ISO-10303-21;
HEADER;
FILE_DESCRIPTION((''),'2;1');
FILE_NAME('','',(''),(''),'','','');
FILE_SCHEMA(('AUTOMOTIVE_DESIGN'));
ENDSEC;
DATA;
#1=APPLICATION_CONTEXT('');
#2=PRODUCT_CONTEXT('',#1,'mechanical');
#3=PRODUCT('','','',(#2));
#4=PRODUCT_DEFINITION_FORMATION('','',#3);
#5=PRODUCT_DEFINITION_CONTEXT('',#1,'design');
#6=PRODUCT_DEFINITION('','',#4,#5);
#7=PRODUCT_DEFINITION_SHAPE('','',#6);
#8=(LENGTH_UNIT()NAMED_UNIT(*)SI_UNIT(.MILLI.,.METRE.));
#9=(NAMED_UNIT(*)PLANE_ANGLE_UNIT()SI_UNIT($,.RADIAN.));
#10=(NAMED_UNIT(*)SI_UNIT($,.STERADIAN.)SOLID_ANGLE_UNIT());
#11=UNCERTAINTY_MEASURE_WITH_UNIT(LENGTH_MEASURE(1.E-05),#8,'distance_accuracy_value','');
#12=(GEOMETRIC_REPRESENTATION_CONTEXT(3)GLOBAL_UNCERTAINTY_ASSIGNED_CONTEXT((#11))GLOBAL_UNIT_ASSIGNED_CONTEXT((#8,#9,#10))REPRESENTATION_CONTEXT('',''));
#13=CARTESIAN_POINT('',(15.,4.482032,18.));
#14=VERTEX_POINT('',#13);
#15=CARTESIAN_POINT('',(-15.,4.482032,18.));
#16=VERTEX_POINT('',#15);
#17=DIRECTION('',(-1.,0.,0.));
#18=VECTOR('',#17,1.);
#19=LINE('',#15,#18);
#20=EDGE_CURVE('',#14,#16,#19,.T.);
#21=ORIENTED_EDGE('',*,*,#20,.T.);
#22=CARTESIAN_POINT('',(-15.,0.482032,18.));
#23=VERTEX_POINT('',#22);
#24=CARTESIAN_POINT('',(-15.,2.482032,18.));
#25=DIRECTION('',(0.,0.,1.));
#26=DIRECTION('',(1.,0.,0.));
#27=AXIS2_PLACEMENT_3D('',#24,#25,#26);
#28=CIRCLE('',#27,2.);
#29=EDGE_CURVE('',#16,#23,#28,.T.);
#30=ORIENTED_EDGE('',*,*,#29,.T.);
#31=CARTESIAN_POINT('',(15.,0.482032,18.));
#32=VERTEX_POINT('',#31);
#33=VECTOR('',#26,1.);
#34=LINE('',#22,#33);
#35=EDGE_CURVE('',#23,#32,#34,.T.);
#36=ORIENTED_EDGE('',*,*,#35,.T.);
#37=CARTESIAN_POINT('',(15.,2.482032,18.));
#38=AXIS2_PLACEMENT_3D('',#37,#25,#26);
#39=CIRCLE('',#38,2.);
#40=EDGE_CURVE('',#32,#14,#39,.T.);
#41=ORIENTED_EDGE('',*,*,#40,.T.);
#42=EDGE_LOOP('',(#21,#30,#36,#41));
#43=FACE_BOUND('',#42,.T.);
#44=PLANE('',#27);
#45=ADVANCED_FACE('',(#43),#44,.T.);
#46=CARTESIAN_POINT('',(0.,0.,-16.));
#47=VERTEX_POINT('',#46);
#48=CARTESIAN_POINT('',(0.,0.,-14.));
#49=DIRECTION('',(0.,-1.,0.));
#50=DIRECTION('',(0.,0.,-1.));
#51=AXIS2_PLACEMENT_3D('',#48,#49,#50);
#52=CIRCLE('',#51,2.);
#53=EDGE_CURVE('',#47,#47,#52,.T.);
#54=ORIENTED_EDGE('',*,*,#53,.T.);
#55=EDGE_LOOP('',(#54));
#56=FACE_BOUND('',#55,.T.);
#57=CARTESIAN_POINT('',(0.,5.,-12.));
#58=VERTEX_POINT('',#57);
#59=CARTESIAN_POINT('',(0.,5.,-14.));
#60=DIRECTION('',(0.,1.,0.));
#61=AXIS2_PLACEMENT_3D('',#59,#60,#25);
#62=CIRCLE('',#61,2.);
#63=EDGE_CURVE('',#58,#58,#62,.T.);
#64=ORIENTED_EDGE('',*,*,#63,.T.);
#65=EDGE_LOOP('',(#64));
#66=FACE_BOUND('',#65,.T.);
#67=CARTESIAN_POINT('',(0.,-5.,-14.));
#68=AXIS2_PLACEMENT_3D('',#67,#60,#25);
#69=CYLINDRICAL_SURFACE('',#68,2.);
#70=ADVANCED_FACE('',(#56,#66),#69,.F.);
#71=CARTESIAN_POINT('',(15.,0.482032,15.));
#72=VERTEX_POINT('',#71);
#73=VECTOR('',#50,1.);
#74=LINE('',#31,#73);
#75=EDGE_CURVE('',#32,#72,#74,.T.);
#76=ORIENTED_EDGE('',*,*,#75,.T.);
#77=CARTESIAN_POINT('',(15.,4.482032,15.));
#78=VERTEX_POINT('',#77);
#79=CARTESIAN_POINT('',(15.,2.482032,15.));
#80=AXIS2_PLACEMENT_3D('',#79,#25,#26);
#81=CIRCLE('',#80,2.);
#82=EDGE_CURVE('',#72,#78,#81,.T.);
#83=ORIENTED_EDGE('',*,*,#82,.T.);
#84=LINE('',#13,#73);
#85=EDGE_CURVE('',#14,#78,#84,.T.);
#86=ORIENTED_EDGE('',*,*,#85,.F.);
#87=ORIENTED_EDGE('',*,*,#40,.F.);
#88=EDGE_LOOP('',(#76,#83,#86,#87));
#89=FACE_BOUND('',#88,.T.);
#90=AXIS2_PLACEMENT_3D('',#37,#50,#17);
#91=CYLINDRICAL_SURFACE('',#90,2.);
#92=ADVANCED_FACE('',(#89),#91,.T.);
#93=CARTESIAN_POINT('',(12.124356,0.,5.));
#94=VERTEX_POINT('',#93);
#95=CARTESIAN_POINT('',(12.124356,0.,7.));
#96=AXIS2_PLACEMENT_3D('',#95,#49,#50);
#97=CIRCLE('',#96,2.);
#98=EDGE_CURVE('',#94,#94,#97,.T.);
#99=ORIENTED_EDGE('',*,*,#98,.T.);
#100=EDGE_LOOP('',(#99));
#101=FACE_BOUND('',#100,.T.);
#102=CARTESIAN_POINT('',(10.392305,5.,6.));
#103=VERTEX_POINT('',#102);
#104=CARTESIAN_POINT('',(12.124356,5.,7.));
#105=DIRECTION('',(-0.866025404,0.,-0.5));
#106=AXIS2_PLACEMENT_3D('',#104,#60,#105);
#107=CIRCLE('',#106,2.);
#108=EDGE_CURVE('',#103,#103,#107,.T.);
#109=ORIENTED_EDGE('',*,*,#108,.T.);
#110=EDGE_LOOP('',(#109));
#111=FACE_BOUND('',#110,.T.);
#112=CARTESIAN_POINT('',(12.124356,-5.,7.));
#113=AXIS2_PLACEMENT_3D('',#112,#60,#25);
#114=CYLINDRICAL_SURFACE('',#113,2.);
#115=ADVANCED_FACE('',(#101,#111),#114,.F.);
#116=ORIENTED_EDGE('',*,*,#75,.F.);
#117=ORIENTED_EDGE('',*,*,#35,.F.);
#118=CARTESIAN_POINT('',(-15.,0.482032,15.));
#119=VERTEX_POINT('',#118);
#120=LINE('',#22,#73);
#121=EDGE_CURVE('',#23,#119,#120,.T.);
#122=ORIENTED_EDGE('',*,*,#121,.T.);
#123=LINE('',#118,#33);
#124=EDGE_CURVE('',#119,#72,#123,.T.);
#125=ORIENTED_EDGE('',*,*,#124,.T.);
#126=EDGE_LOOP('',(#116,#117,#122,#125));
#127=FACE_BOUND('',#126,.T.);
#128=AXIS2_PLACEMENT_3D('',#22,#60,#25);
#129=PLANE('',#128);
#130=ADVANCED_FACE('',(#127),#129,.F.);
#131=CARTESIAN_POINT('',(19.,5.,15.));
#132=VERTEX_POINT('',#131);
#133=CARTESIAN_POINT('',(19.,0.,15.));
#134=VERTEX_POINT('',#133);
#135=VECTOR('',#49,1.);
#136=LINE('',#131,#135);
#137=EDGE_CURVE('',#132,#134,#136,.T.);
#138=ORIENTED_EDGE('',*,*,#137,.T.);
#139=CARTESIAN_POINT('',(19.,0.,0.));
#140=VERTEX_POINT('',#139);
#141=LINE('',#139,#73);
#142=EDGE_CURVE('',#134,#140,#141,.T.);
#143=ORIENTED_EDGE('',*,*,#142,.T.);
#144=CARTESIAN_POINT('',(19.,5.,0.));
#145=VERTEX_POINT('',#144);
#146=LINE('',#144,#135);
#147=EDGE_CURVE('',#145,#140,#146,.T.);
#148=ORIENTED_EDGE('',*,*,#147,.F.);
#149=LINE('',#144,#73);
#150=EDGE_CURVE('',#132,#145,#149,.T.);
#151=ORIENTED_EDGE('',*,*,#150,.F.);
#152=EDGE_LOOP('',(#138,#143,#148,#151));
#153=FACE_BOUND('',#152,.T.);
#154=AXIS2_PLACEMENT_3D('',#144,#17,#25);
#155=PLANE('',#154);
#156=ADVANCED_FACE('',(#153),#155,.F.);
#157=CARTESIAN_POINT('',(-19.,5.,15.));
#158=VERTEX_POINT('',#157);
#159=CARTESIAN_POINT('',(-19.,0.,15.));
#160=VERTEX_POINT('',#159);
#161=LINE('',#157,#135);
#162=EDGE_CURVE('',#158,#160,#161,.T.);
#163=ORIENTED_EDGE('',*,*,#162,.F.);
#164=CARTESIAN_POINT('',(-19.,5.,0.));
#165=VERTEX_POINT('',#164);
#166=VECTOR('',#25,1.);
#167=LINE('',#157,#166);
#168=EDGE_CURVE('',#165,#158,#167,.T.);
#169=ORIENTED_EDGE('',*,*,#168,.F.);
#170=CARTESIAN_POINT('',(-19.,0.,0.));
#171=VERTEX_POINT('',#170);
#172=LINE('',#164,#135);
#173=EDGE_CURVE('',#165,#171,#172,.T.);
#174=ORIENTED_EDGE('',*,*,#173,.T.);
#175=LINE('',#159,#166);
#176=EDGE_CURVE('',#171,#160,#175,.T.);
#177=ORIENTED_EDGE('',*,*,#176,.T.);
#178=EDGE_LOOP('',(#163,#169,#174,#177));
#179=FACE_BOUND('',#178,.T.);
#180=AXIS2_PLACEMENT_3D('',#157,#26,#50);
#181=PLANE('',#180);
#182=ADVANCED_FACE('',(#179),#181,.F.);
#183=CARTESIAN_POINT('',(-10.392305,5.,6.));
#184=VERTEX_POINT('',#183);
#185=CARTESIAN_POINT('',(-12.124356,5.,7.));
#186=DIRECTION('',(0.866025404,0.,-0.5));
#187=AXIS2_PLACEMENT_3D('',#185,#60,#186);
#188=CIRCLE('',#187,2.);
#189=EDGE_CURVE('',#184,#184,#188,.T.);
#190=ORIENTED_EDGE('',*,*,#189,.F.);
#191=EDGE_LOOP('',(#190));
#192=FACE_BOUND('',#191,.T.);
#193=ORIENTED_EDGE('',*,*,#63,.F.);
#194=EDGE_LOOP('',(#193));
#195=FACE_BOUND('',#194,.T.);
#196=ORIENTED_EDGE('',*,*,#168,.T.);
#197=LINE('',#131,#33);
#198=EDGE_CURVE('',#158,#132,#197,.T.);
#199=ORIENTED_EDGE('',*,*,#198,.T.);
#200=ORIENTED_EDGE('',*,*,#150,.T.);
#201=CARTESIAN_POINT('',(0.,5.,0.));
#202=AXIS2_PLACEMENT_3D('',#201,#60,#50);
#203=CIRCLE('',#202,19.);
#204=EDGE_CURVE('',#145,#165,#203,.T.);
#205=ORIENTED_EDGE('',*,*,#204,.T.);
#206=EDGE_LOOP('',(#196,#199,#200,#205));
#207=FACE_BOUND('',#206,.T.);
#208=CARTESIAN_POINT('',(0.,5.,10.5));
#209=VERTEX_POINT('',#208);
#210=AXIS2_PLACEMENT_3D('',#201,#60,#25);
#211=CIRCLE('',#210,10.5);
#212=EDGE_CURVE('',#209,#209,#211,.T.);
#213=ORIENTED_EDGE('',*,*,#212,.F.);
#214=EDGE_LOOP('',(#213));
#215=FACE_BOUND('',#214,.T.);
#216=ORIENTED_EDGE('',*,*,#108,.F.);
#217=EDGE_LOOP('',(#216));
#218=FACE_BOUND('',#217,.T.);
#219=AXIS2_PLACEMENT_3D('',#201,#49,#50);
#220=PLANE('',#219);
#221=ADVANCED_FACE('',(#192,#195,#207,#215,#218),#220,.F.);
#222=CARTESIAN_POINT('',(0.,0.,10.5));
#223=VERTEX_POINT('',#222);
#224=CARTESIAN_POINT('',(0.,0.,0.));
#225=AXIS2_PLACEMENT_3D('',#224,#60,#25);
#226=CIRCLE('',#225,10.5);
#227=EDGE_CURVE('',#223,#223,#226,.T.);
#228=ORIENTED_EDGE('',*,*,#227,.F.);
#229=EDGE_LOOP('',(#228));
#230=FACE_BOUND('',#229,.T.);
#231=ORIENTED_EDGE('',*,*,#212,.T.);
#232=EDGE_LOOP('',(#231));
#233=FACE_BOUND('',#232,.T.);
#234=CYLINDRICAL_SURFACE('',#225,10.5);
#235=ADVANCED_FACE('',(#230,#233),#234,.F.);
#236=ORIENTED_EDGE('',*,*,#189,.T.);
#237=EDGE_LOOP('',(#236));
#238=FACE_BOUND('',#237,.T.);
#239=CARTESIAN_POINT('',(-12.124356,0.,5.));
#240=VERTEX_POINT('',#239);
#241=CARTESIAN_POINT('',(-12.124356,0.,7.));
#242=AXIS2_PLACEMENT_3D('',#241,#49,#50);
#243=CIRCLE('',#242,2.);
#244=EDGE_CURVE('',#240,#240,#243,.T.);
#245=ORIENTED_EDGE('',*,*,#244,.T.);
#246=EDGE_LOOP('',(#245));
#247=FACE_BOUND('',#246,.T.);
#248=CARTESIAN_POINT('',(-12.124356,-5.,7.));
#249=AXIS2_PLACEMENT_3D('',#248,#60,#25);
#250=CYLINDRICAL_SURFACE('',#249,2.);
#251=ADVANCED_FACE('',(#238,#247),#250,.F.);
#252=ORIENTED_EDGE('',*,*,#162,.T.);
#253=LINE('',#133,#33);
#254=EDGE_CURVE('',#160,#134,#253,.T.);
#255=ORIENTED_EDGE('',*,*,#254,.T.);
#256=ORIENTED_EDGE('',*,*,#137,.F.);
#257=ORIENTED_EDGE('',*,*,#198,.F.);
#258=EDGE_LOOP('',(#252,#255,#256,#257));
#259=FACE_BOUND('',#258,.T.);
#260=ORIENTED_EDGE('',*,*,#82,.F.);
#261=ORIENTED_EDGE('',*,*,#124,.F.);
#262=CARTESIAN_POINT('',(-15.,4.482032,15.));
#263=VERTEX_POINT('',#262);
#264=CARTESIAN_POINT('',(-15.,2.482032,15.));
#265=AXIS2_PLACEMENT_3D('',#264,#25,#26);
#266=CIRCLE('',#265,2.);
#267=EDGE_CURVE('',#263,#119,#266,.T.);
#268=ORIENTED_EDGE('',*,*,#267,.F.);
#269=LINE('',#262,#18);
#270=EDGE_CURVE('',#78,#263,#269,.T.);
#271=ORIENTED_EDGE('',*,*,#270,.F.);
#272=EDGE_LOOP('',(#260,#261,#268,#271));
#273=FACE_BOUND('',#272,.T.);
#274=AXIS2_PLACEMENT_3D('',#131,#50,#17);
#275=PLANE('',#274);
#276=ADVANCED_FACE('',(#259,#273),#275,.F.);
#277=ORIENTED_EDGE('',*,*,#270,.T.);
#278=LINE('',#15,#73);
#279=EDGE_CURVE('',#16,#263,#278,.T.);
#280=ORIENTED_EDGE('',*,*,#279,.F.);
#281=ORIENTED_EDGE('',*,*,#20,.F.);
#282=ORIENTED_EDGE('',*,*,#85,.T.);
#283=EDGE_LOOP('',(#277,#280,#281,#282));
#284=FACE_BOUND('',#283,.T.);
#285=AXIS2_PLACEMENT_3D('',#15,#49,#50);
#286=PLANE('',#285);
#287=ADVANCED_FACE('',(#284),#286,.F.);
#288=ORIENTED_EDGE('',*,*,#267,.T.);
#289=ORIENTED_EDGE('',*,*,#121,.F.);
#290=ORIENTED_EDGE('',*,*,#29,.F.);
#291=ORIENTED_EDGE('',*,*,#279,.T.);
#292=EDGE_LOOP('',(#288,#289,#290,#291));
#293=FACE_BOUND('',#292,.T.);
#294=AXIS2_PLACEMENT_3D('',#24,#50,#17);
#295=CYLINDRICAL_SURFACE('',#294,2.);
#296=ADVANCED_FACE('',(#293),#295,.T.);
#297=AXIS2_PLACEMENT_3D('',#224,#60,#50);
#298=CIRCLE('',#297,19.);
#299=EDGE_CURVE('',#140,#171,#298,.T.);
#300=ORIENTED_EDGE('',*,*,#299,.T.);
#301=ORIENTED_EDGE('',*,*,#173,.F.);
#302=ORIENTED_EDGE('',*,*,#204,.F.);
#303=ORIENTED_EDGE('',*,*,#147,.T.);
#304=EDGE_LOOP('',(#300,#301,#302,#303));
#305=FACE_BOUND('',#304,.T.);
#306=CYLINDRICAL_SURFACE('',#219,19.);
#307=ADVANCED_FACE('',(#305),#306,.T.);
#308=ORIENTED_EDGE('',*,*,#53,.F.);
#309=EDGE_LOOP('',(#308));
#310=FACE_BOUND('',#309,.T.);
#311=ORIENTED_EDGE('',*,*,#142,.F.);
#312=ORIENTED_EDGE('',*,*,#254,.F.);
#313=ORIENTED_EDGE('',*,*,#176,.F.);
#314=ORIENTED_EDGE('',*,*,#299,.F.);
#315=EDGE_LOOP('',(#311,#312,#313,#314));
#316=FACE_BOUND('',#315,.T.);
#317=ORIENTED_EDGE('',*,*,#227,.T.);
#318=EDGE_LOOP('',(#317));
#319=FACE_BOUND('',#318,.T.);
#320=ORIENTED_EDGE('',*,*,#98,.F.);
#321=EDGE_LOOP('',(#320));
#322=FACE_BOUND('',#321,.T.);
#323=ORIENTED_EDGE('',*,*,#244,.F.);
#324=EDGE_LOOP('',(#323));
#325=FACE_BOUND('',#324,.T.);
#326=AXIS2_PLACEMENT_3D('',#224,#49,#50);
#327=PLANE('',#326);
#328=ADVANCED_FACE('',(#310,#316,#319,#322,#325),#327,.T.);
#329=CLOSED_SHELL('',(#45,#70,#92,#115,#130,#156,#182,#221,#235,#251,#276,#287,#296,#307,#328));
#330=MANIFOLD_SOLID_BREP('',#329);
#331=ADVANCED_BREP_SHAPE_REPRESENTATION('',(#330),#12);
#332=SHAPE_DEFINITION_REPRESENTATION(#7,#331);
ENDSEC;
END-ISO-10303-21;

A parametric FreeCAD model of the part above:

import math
import FreeCAD as App
import Part
import Sketcher
Q = App.Units.Quantity

doc = App.newDocument("Part")
body = doc.addObject("PartDesign::Body", "Body")

sketch1 = body.newObject("Sketcher::SketchObject", "Sketch")
sketch1.AttachmentSupport = (doc.getObject("XZ_Plane"), [""])
sketch1.MapMode = "FlatFace"
sketch1.addGeometry([
    Part.LineSegment(App.Vector(19, 15, 0), App.Vector(19, 0, 0)),
    Part.ArcOfCircle(Part.Circle(App.Vector(0, 0, 0), App.Vector(0, 0, 1), 19), math.radians(180), math.radians(360)),
    Part.LineSegment(App.Vector(-19, 0, 0), App.Vector(-19, 15, 0)),
    Part.LineSegment(App.Vector(-19, 15, 0), App.Vector(19, 15, 0)),
], False)
sketch1.addConstraint([
    Sketcher.Constraint("Tangent", 0, 2, 1, 2),
    Sketcher.Constraint("Tangent", 1, 1, 2, 1),
    Sketcher.Constraint("Coincident", 2, 2, 3, 1),
    Sketcher.Constraint("Coincident", 3, 2, 0, 1),
    Sketcher.Constraint("Vertical", 0),
    Sketcher.Constraint("Vertical", 2),
    Sketcher.Constraint("Horizontal", 3),
    Sketcher.Constraint("Coincident", 1, 3, -1, 1),
    Sketcher.Constraint("Radius", 1, Q("19 mm")),
    Sketcher.Constraint("DistanceY", 0, 2, 0, 1, Q("15 mm")),
])
pad1 = body.newObject("PartDesign::Pad", "Pad")
pad1.Profile = sketch1
pad1.Length = 5
pad1.Reversed = True

sketch2 = body.newObject("Sketcher::SketchObject", "Sketch001")
sketch2.AttachmentSupport = (doc.getObject("XY_Plane"), [""])
sketch2.MapMode = "FlatFace"
sketch2.AttachmentOffset = App.Placement(App.Vector(0, 0, 15), App.Rotation())
sketch2.addGeometry([
    Part.LineSegment(App.Vector(15, 4.482032, 0), App.Vector(-15, 4.482032, 0)),
    Part.ArcOfCircle(Part.Circle(App.Vector(-15, 2.482032, 0), App.Vector(0, 0, 1), 2), math.radians(90), math.radians(270)),
    Part.LineSegment(App.Vector(-15, 0.482032, 0), App.Vector(15, 0.482032, 0)),
    Part.ArcOfCircle(Part.Circle(App.Vector(15, 2.482032, 0), App.Vector(0, 0, 1), 2), math.radians(-90), math.radians(90)),
], False)
sketch2.addConstraint([
    Sketcher.Constraint("Tangent", 0, 2, 1, 1),
    Sketcher.Constraint("Tangent", 1, 2, 2, 1),
    Sketcher.Constraint("Tangent", 2, 2, 3, 1),
    Sketcher.Constraint("Tangent", 3, 2, 0, 1),
    Sketcher.Constraint("Horizontal", 0),
    Sketcher.Constraint("Horizontal", 2),
    Sketcher.Constraint("Radius", 1, Q("2 mm")),
    Sketcher.Constraint("DistanceX", 0, 2, 0, 1, Q("30 mm")),
    Sketcher.Constraint("DistanceX", 1, 3, -1, 1, Q("15 mm")),
    Sketcher.Constraint("DistanceY", -1, 1, 1, 3, Q("2.482032 mm")),
])
pad2 = body.newObject("PartDesign::Pad", "Pad001")
pad2.Profile = sketch2
pad2.Length = 3

sketch3 = body.newObject("Sketcher::SketchObject", "Sketch002")
sketch3.AttachmentSupport = (doc.getObject("XZ_Plane"), [""])
sketch3.MapMode = "FlatFace"
sketch3.AttachmentOffset = App.Placement(App.Vector(0, 0, -5), App.Rotation())
sketch3.addGeometry(Part.Circle(App.Vector(0, 0, 0), App.Vector(0, 0, 1), 10.5), False)
sketch3.addConstraint([
    Sketcher.Constraint("Coincident", 0, 3, -1, 1),
    Sketcher.Constraint("Diameter", 0, Q("21 mm")),
])
pocket1 = body.newObject("PartDesign::Pocket", "Pocket")
pocket1.Profile = sketch3
pocket1.Length = 5
pocket1.Reversed = True

sketch4 = body.newObject("Sketcher::SketchObject", "Sketch003")
sketch4.AttachmentSupport = (doc.getObject("XZ_Plane"), [""])
sketch4.MapMode = "FlatFace"
sketch4.AttachmentOffset = App.Placement(App.Vector(0, 0, -5), App.Rotation())
sketch4.addGeometry(Part.Circle(App.Vector(0, -14, 0), App.Vector(0, 0, 1), 2), False)
sketch4.addConstraint([
    Sketcher.Constraint("PointOnObject", 0, 3, -2),
    Sketcher.Constraint("Diameter", 0, Q("4 mm")),
    Sketcher.Constraint("DistanceY", 0, 3, -1, 1, Q("14 mm")),
])
pocket2 = body.newObject("PartDesign::Pocket", "Pocket001")
pocket2.Profile = sketch4
pocket2.Length = 10
pocket2.Reversed = True
doc.recompute()

polarpattern = body.newObject("PartDesign::PolarPattern", "PolarPattern")
polarpattern.Originals = [pocket2]
polarpattern.Axis = (doc.getObject("Y_Axis"), [""])
polarpattern.Angle = 360
polarpattern.Occurrences = 3
body.Tip = polarpattern

doc.recompute()
